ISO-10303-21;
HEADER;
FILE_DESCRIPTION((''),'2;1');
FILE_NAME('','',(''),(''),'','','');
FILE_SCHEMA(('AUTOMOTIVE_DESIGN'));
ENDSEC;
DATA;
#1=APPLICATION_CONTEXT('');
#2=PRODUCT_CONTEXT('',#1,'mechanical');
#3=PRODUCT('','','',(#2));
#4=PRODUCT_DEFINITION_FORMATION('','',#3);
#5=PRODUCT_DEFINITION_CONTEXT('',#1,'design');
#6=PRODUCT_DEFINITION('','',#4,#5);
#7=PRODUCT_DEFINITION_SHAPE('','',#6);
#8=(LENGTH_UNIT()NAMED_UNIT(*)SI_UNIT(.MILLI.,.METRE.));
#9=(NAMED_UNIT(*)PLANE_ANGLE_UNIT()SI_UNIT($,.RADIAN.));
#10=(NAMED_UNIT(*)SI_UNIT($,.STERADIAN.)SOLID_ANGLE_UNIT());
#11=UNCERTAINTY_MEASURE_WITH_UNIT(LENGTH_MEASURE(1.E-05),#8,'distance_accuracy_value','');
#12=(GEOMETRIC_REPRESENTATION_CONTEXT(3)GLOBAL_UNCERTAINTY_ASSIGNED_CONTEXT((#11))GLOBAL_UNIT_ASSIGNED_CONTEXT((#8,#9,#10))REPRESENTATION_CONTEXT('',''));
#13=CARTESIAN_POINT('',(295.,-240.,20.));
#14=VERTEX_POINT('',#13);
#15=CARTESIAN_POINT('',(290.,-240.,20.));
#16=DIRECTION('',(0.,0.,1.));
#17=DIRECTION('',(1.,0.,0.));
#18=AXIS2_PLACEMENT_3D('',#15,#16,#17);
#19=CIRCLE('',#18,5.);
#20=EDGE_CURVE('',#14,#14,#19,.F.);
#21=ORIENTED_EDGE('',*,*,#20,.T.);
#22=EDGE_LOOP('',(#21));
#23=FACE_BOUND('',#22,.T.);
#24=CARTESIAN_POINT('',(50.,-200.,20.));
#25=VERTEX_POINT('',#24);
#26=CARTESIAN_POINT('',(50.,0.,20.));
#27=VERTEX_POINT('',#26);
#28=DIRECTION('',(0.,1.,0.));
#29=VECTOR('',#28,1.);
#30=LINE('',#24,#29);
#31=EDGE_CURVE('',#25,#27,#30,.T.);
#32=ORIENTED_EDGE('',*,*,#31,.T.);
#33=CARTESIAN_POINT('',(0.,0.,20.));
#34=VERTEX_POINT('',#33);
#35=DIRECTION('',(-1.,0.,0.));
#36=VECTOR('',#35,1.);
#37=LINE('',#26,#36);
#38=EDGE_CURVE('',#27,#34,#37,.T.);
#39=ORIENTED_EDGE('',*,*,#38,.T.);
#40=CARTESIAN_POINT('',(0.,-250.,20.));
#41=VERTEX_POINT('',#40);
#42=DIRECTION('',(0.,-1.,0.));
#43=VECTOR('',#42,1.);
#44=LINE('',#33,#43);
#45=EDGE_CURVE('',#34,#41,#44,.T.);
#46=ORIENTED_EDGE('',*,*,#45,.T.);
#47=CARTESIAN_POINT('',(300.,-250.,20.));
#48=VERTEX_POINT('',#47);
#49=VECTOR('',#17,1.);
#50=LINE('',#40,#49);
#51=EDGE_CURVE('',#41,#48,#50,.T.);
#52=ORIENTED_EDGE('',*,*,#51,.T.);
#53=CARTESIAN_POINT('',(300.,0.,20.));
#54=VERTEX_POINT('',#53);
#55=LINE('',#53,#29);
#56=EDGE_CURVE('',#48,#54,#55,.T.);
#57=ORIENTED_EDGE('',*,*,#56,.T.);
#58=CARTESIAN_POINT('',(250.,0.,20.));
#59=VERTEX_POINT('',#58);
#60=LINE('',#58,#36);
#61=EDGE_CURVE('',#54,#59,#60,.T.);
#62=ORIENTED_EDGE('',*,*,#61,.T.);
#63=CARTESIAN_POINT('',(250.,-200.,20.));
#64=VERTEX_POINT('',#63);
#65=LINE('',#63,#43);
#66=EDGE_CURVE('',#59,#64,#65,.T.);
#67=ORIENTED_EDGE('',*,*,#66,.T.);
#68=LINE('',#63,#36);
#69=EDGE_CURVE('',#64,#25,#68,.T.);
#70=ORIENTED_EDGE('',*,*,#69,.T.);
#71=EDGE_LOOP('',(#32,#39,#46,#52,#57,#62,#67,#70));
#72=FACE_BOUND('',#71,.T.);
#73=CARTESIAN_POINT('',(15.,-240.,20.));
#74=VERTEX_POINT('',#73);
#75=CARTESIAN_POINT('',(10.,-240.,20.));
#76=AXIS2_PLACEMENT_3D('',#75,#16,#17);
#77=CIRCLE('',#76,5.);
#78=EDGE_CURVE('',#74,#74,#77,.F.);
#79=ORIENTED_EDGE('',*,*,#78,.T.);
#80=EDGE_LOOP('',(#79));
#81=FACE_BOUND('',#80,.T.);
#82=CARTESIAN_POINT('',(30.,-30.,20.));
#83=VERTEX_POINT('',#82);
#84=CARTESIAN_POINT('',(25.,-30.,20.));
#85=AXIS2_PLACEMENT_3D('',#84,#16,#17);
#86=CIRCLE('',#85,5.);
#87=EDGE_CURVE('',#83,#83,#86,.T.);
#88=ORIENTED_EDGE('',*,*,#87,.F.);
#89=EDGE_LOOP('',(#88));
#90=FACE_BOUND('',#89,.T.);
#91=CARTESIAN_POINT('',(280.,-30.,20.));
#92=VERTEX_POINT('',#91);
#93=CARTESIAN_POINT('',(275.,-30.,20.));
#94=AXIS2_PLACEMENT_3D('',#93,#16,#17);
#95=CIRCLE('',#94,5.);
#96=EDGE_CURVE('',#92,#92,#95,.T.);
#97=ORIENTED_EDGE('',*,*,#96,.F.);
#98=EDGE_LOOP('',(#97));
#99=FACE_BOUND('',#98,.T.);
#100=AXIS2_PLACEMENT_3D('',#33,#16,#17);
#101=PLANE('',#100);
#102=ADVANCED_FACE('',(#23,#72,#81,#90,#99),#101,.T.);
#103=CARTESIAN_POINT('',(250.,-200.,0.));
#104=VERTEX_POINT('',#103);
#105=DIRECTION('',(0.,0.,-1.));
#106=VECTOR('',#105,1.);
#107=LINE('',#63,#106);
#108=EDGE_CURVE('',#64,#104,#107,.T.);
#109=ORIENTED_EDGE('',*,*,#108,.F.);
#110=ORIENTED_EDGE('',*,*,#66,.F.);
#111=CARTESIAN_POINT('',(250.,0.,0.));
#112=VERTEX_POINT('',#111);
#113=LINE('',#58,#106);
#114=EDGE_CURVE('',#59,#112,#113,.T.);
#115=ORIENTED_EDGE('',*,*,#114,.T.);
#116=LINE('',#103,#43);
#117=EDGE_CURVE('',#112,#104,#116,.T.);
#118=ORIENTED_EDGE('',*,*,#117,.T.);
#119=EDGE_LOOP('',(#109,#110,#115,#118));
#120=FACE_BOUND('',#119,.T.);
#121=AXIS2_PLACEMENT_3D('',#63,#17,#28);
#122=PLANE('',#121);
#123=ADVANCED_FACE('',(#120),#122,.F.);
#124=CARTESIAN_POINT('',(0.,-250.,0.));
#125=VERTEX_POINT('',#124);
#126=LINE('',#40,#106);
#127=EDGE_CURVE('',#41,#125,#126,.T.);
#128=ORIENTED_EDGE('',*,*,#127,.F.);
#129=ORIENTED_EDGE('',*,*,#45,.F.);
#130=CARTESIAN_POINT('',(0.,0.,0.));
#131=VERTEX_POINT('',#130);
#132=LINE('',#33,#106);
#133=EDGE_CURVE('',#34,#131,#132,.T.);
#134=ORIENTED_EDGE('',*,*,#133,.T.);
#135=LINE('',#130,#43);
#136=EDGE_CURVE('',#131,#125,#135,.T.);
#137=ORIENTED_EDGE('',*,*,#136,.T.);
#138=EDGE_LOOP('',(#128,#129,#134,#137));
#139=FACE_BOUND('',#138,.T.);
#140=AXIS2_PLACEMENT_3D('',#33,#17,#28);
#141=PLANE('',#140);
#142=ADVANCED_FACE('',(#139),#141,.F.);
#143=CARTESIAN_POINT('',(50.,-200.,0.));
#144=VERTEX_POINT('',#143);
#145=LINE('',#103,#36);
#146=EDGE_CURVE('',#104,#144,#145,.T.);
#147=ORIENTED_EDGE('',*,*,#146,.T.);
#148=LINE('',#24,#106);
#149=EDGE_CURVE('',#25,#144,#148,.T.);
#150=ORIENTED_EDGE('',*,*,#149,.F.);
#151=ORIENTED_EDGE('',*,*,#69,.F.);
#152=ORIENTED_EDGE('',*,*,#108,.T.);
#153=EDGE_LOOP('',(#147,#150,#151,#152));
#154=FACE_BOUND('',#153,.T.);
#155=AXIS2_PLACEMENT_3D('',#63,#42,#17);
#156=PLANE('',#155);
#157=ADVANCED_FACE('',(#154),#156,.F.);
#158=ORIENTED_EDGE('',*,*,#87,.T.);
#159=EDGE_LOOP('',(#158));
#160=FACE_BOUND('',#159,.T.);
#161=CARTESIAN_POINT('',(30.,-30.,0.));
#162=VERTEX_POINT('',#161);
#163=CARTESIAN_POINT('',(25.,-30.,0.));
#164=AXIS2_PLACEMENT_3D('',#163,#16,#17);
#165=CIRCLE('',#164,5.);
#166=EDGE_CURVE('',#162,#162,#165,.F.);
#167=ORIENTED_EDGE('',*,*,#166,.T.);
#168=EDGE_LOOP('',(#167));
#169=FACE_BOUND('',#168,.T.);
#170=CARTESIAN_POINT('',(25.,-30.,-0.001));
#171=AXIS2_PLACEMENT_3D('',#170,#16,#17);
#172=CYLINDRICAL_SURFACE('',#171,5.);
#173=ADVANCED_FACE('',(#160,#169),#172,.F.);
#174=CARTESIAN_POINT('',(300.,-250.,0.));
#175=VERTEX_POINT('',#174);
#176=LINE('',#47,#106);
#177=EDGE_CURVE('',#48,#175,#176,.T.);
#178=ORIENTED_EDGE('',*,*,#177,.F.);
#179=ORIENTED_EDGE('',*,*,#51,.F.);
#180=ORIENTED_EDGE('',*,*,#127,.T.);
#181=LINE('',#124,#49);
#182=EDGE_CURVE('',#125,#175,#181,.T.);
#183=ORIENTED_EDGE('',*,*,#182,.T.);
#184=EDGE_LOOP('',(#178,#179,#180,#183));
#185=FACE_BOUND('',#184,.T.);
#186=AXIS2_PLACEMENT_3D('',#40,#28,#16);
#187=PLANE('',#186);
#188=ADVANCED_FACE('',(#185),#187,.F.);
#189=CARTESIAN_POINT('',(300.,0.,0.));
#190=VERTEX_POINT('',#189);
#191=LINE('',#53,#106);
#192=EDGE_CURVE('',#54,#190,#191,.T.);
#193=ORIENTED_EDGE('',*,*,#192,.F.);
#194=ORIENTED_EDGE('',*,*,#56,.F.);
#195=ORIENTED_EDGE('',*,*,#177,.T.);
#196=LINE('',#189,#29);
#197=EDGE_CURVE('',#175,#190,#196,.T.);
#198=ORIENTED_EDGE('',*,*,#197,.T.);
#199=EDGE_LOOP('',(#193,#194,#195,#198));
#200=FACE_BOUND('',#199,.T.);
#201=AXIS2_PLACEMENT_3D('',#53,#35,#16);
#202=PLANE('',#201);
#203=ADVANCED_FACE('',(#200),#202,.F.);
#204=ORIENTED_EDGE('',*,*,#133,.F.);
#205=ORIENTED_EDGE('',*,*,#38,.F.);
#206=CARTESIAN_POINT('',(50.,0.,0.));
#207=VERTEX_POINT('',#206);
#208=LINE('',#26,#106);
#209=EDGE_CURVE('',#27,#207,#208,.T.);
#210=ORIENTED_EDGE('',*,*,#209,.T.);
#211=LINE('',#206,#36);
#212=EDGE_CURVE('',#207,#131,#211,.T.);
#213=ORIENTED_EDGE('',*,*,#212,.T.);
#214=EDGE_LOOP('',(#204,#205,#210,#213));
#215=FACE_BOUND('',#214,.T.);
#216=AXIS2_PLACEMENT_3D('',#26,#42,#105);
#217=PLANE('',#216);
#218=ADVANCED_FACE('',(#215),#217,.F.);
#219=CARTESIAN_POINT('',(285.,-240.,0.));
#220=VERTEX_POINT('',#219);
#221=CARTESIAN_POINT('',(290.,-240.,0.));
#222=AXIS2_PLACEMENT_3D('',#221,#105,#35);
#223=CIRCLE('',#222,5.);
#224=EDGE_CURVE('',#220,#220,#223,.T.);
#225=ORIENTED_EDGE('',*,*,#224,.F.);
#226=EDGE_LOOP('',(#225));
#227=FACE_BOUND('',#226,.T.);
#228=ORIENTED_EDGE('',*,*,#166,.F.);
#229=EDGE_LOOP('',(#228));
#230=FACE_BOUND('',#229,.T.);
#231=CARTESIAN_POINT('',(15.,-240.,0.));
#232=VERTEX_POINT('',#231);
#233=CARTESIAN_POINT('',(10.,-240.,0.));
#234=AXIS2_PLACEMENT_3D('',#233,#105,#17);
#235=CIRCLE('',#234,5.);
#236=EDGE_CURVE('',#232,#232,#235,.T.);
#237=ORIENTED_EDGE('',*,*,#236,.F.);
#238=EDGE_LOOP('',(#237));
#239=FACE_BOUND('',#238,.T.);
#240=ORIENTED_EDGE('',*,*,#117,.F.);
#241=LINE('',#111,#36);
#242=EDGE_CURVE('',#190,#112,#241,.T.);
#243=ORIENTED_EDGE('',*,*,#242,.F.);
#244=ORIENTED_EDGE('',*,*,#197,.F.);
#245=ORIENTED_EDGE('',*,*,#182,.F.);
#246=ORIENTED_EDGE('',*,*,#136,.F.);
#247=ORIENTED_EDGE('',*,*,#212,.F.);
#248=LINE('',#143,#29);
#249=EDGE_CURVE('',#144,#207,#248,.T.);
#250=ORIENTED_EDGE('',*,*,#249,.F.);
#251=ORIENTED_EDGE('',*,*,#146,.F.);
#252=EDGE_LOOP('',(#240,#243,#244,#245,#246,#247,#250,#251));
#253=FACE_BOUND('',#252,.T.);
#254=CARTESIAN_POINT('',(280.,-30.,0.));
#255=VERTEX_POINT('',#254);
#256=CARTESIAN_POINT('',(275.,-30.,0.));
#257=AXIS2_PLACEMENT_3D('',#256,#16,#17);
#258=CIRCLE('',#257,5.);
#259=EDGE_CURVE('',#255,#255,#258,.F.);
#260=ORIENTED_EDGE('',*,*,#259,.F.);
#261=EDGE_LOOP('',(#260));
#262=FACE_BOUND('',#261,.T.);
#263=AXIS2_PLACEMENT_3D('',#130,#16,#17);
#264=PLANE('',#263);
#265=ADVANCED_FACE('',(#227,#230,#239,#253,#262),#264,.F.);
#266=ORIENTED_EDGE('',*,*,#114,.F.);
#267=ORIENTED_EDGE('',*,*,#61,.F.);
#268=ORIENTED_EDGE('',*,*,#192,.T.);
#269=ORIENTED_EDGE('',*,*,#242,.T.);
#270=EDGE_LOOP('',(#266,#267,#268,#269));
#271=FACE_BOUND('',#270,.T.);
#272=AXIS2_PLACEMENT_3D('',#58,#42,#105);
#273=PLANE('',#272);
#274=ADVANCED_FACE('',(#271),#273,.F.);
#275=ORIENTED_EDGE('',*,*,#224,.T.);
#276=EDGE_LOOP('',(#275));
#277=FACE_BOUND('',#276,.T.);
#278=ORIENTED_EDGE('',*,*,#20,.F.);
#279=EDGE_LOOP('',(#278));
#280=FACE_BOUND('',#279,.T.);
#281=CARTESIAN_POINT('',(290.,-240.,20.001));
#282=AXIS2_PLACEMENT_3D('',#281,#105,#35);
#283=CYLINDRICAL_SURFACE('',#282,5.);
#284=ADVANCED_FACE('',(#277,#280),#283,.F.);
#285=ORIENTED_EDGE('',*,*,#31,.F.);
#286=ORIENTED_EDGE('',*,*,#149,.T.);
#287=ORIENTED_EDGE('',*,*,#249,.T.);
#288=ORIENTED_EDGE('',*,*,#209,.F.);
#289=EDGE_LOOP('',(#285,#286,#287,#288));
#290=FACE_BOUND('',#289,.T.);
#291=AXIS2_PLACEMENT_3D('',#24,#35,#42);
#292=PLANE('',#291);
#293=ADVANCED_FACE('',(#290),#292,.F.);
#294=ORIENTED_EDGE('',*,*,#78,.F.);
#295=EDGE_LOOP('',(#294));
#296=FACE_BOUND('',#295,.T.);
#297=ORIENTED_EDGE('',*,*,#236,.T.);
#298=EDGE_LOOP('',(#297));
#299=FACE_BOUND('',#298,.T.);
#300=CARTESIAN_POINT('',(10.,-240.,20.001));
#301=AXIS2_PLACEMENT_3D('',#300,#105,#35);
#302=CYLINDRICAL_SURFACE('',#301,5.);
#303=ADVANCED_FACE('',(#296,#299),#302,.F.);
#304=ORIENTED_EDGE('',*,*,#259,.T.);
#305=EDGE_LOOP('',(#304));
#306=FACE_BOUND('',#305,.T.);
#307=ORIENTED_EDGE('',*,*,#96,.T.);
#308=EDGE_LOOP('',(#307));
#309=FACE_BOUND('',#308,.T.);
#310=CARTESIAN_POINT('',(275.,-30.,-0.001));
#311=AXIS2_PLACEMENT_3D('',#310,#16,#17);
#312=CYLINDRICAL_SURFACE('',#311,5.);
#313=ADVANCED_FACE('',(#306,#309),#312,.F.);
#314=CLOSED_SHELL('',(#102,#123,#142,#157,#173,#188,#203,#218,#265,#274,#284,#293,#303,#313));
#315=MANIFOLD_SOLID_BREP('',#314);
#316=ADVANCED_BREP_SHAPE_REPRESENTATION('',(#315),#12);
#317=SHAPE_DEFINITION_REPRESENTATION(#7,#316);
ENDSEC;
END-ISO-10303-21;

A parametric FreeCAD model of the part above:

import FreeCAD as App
import Part
import Sketcher


def add_polygon(sketch, points):
    """Adds a closed chain of lines whose ends are joined by coincident constraints."""
    first, n = sketch.GeometryCount, len(points)
    for a, b in zip(points, points[1:] + points[:1]):
        sketch.addGeometry(Part.LineSegment(App.Vector(*a, 0), App.Vector(*b, 0)), False)
    for i in range(n):
        sketch.addConstraint(Sketcher.Constraint("Coincident", first + i, 2, first + (i + 1) % n, 1))

doc = App.newDocument("Part")
body = doc.addObject("PartDesign::Body", "Body")

# Sketch on XY plane
sketch1 = body.newObject("Sketcher::SketchObject", "Sketch")
sketch1.AttachmentSupport = (doc.getObject("XY_Plane"), [""])
sketch1.MapMode = "FlatFace"
add_polygon(sketch1, [(0, 0), (0, -250), (300, -250), (300, 0), (250, 0), (250, -200), (50, -200), (50, 0)])  # lines 0-7
sketch1.addConstraint([
    Sketcher.Constraint("Vertical", 0),
    Sketcher.Constraint("Horizontal", 1),
    Sketcher.Constraint("Vertical", 2),
    Sketcher.Constraint("Horizontal", 3),
    Sketcher.Constraint("Vertical", 4),
    Sketcher.Constraint("Horizontal", 5),
    Sketcher.Constraint("Vertical", 6),
    Sketcher.Constraint("Horizontal", 7),
    Sketcher.Constraint("Coincident", 7, 2, -1, 1),
    Sketcher.Constraint("PointOnObject", 2, 2, -1),
    Sketcher.Constraint("Equal", 3, 7),
    Sketcher.Constraint("Equal", 5, 4),
    Sketcher.Constraint("DistanceX", 1, 1, 1, 2, 300.0),
    Sketcher.Constraint("DistanceX", 3, 2, 3, 1, 50.0),
    Sketcher.Constraint("DistanceY", 0, 2, 0, 1, 250.0),
])
pad1 = body.newObject("PartDesign::Pad", "Pad")
pad1.Profile = sketch1
pad1.Length = 20

# Sketch on XY plane
sketch2 = body.newObject("Sketcher::SketchObject", "Sketch001")
sketch2.AttachmentSupport = (doc.getObject("XY_Plane"), [""])
sketch2.MapMode = "FlatFace"
sketch2.AttachmentOffset = App.Placement(App.Vector(0, 0, 20), App.Rotation())
sketch2.addGeometry(Part.Circle(App.Vector(25, -30, 0), App.Vector(0, 0, 1), 5), False)
sketch2.addConstraint([
    Sketcher.Constraint("Diameter", 0, 10.0),
    Sketcher.Constraint("DistanceX", -1, 1, 0, 3, 25.0),
    Sketcher.Constraint("DistanceY", 0, 3, -1, 1, 30.0),
])
pocket1 = body.newObject("PartDesign::Pocket", "Pocket")
pocket1.Profile = sketch2
pocket1.Type = "UpToFirst"

# Sketch on XY plane
sketch3 = body.newObject("Sketcher::SketchObject", "Sketch002")
sketch3.AttachmentSupport = (doc.getObject("XY_Plane"), [""])
sketch3.MapMode = "FlatFace"
sketch3.AttachmentOffset = App.Placement(App.Vector(0, 0, 20), App.Rotation())
sketch3.addGeometry(Part.Circle(App.Vector(275, -30, 0), App.Vector(0, 0, 1), 5), False)
sketch3.addConstraint([
    Sketcher.Constraint("Diameter", 0, 10.0),
    Sketcher.Constraint("DistanceX", -1, 1, 0, 3, 275.0),
    Sketcher.Constraint("DistanceY", 0, 3, -1, 1, 30.0),
])
pocket2 = body.newObject("PartDesign::Pocket", "Pocket001")
pocket2.Profile = sketch3
pocket2.Type = "UpToFirst"

# Sketch on XY plane
sketch4 = body.newObject("Sketcher::SketchObject", "Sketch003")
sketch4.AttachmentSupport = (doc.getObject("XY_Plane"), [""])
sketch4.MapMode = "FlatFace"
sketch4.addGeometry(Part.Circle(App.Vector(290, -240, 0), App.Vector(0, 0, 1), 5), False)
sketch4.addConstraint([
    Sketcher.Constraint("Diameter", 0, 10.0),
    Sketcher.Constraint("DistanceX", -1, 1, 0, 3, 290.0),
    Sketcher.Constraint("DistanceY", 0, 3, -1, 1, 240.0),
])
pocket3 = body.newObject("PartDesign::Pocket", "Pocket002")
pocket3.Profile = sketch4
pocket3.Type = "UpToFirst"
pocket3.Reversed = True

# Sketch on XY plane
sketch5 = body.newObject("Sketcher::SketchObject", "Sketch004")
sketch5.AttachmentSupport = (doc.getObject("XY_Plane"), [""])
sketch5.MapMode = "FlatFace"
sketch5.addGeometry(Part.Circle(App.Vector(10, -240, 0), App.Vector(0, 0, 1), 5), False)
sketch5.addConstraint([
    Sketcher.Constraint("Diameter", 0, 10.0),
    Sketcher.Constraint("DistanceX", -1, 1, 0, 3, 10.0),
    Sketcher.Constraint("DistanceY", 0, 3, -1, 1, 240.0),
])
pocket4 = body.newObject("PartDesign::Pocket", "Pocket003")
pocket4.Profile = sketch5
pocket4.Type = "UpToFirst"
pocket4.Reversed = True

doc.recompute()
